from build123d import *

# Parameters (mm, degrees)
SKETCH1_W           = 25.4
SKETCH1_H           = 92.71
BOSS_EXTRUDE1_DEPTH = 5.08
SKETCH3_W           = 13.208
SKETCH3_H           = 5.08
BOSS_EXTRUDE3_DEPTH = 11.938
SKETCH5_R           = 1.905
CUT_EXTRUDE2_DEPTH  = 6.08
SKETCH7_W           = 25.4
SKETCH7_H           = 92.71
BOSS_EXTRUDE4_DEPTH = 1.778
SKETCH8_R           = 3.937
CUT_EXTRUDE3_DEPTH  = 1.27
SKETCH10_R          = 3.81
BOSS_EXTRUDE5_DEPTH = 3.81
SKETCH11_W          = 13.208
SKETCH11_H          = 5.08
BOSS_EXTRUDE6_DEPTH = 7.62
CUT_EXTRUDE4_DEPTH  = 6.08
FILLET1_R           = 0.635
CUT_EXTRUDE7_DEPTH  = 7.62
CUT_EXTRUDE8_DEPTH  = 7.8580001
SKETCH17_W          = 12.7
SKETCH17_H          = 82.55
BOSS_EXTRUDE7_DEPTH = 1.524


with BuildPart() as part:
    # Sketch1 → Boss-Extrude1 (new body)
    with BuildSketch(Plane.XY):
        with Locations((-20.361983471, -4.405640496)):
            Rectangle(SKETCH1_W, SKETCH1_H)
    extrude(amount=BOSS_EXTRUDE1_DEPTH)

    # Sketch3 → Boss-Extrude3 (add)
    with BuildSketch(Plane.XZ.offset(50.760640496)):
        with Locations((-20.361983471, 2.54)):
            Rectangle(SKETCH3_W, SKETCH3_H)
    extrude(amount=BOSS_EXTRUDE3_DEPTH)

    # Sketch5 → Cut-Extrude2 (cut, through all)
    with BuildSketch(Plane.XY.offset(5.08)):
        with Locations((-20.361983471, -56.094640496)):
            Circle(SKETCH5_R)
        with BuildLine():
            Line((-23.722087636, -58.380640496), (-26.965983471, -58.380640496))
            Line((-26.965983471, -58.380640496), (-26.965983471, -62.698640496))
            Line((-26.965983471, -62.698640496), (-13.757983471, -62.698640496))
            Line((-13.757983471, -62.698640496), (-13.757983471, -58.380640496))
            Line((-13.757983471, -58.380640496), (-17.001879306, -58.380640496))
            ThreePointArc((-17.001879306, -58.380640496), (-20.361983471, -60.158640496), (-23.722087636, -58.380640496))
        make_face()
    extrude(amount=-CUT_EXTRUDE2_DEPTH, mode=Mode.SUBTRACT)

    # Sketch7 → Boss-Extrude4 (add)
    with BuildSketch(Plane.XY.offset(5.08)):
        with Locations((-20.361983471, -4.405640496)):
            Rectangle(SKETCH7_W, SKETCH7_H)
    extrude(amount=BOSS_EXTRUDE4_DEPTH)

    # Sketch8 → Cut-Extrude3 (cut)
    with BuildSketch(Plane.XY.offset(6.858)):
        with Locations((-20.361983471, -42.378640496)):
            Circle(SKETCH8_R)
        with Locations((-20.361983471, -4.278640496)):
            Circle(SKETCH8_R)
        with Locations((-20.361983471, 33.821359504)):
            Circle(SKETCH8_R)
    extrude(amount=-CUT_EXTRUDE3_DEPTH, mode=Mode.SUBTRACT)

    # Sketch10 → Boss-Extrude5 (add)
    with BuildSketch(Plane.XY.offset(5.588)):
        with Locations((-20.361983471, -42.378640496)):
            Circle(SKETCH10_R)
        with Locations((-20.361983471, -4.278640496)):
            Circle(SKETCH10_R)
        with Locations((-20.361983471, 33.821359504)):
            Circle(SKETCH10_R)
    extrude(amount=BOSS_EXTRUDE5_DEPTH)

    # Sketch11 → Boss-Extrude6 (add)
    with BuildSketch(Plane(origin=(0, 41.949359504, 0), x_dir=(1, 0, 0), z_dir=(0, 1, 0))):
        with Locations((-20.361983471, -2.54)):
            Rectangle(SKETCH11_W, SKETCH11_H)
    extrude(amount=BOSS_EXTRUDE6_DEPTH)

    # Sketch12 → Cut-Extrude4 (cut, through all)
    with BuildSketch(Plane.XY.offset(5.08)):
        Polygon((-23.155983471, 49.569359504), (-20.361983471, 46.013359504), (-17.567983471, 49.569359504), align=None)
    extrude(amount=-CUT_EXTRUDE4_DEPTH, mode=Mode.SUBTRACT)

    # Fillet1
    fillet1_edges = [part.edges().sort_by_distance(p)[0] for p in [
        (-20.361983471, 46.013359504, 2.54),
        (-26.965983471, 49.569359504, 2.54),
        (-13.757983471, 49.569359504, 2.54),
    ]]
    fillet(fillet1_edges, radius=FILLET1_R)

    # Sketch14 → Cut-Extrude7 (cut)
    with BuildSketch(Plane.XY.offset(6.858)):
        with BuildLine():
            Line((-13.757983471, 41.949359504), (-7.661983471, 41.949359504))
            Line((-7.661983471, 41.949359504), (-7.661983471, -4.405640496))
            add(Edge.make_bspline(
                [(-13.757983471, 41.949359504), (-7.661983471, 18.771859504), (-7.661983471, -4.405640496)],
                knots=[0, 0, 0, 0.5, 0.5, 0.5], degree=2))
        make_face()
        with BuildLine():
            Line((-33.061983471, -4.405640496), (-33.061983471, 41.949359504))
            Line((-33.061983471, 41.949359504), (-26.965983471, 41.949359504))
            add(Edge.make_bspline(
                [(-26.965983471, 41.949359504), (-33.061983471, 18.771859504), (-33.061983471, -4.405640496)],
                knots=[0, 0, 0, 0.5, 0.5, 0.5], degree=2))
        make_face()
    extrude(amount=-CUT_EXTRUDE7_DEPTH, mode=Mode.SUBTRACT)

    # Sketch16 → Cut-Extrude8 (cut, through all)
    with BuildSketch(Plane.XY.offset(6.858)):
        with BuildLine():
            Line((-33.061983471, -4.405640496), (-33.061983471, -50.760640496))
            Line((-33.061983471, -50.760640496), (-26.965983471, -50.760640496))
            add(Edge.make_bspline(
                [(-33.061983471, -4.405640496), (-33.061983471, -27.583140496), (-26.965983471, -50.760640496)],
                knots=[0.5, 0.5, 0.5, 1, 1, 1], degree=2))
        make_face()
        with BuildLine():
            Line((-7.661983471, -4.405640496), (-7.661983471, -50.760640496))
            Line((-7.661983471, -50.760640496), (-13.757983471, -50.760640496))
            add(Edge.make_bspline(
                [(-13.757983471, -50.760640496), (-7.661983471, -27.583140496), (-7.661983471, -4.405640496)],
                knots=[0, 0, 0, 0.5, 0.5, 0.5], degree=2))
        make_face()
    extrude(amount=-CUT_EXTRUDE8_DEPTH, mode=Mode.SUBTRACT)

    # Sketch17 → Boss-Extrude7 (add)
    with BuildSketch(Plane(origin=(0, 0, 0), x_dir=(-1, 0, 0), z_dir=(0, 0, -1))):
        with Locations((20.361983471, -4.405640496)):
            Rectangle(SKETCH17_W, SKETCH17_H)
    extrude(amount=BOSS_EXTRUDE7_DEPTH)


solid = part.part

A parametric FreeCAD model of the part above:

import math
import FreeCAD as App
import Part
import Sketcher
from FreeCAD import Vector
Q = App.Units.Quantity


def edges_at(feature, points):
    """Names of the edges that pass closest to the given points."""
    edges = feature.Shape.Edges
    near = lambda p: min(range(len(edges)), key=lambda i: edges[i].distToShape(Part.Vertex(*p))[0])
    return sorted({f"Edge{near(p) + 1}" for p in points})


def add_polygon(sketch, points):
    """Adds a closed chain of lines whose ends are joined by coincident constraints."""
    first, n = sketch.GeometryCount, len(points)
    for a, b in zip(points, points[1:] + points[:1]):
        sketch.addGeometry(Part.LineSegment(App.Vector(*a, 0), App.Vector(*b, 0)), False)
    for i in range(n):
        sketch.addConstraint(Sketcher.Constraint("Coincident", first + i, 2, first + (i + 1) % n, 1))

doc = App.newDocument("Part")
params = doc.addObject("Spreadsheet::Sheet", "Params")
for row, (alias, value) in enumerate([
    ("sketch1_width", "1 in"),
    ("sketch1_height", "3.65 in"),
    ("pad1_length", "0.2 in"),
    ("sketch2_height", "0.2 in"),
    ("sketch2_width", "0.52 in"),
    ("pad2_length", "0.47 in"),
    ("sketch3_diameter", "0.15 in"),
    ("sketch3_radius", "0.16 in"),
    ("sketch3_width", "0.52 in"),
    ("sketch3_height", "0.17 in"),
    ("sketch4_width", "1 in"),
    ("sketch4_height", "3.65 in"),
    ("pad3_length", "0.07 in"),
    ("sketch5_diameter", "0.31 in"),
    ("pocket2_length", "0.05 in"),
    ("sketch6_diameter", "0.3 in"),
    ("pad4_length", "0.15 in"),
    ("sketch7_height", "0.2 in"),
    ("sketch7_width", "0.52 in"),
    ("pad5_length", "0.3 in"),
    ("sketch8_width", "0.22 in"),
    ("fillet_radius", "0.025 in"),
    ("pocket4_length", "0.3 in"),
    ("sketch11_width", "0.5 in"),
    ("sketch11_height", "3.25 in"),
    ("pad6_length", "0.06 in"),
], start=1):
    params.set(f"A{row}", alias)
    params.set(f"B{row}", "=" + value)
    params.setAlias(f"B{row}", alias)

body = doc.addObject("PartDesign::Body", "Body")

# Sketch on XY plane
sketch1 = body.newObject("Sketcher::SketchObject", "Sketch")
sketch1.AttachmentSupport = (doc.getObject("XY_Plane"), [""])
sketch1.MapMode = "FlatFace"
add_polygon(sketch1, [(-33.061983, 41.94936), (-33.061983, -50.76064), (-7.661983, -50.76064), (-7.661983, 41.94936)])  # lines 0-3
sketch1.addConstraint([
    Sketcher.Constraint("Vertical", 0),
    Sketcher.Constraint("Horizontal", 1),
    Sketcher.Constraint("Vertical", 2),
    Sketcher.Constraint("Horizontal", 3),
    Sketcher.Constraint("DistanceX", 1, 1, 1, 2, Q("1 in")),
    Sketcher.Constraint("DistanceY", 0, 2, 0, 1, Q("3.65 in")),
    Sketcher.Constraint("DistanceY", 0, 2, -1, 1, 50.76064),
    Sketcher.Constraint("DistanceX", 0, 2, -1, 1, 33.061983),
])
sketch1.setExpression("Constraints[8]", "Params.sketch1_width")
sketch1.setExpression("Constraints[9]", "Params.sketch1_height")
pad1 = body.newObject("PartDesign::Pad", "Pad")
pad1.Profile = sketch1
pad1.setExpression("Length", "Params.pad1_length")

# Sketch on XZ plane
sketch2 = body.newObject("Sketcher::SketchObject", "Sketch001")
sketch2.AttachmentSupport = (doc.getObject("XZ_Plane"), [""])
sketch2.MapMode = "FlatFace"
sketch2.AttachmentOffset = App.Placement(Vector(0, 0, 50.76064), App.Rotation())
add_polygon(sketch2, [(-26.965983, 5.08), (-26.965983, 0), (-13.757983, 0), (-13.757983, 5.08)])  # lines 0-3
sketch2.addConstraint([
    Sketcher.Constraint("Vertical", 0),
    Sketcher.Constraint("Horizontal", 1),
    Sketcher.Constraint("Vertical", 2),
    Sketcher.Constraint("Horizontal", 3),
    Sketcher.Constraint("PointOnObject", 0, 2, -1),
    Sketcher.Constraint("DistanceY", 0, 2, 0, 1, Q("0.2 in")),
    Sketcher.Constraint("DistanceX", 1, 1, 1, 2, Q("0.52 in")),
    Sketcher.Constraint("DistanceX", 0, 2, -1, 1, 26.965983),
])
sketch2.setExpression("Constraints[9]", "Params.sketch2_height")
sketch2.setExpression("Constraints[10]", "Params.sketch2_width")
pad2 = body.newObject("PartDesign::Pad", "Pad001")
pad2.Profile = sketch2
pad2.setExpression("Length", "Params.pad2_length")

# Sketch on XY plane
sketch3 = body.newObject("Sketcher::SketchObject", "Sketch002")
sketch3.AttachmentSupport = (doc.getObject("XY_Plane"), [""])
sketch3.MapMode = "FlatFace"
sketch3.AttachmentOffset = App.Placement(Vector(0, 0, 0.2 * 25.4), App.Rotation())
sketch3.addGeometry([
    Part.Circle(Vector(-20.361983, -56.09464, 0), Vector(0, 0, 1), 1.905),  # 0
    Part.LineSegment(Vector(-23.722088, -58.38064, 0), Vector(-26.965983, -58.38064, 0)),  # 1
    Part.LineSegment(Vector(-26.965983, -58.38064, 0), Vector(-26.965983, -62.69864, 0)),  # 2
    Part.LineSegment(Vector(-26.965983, -62.69864, 0), Vector(-13.757983, -62.69864, 0)),  # 3
    Part.LineSegment(Vector(-13.757983, -62.69864, 0), Vector(-13.757983, -58.38064, 0)),  # 4
    Part.LineSegment(Vector(-13.757983, -58.38064, 0), Vector(-17.001879, -58.38064, 0)),  # 5
    Part.ArcOfCircle(Part.Circle(Vector(-20.361983, -56.09464, 0), Vector(0, 0, 1), 4.064), math.radians(-145.771134), math.radians(-34.228866)),  # 6
], False)
sketch3.addConstraint([
    Sketcher.Constraint("Coincident", 1, 2, 2, 1),
    Sketcher.Constraint("Coincident", 2, 2, 3, 1),
    Sketcher.Constraint("Coincident", 3, 2, 4, 1),
    Sketcher.Constraint("Coincident", 4, 2, 5, 1),
    Sketcher.Constraint("Coincident", 5, 2, 6, 2),
    Sketcher.Constraint("Coincident", 6, 1, 1, 1),
    Sketcher.Constraint("Horizontal", 1),
    Sketcher.Constraint("Vertical", 2),
    Sketcher.Constraint("Horizontal", 3),
    Sketcher.Constraint("Vertical", 4),
    Sketcher.Constraint("Horizontal", 5),
    Sketcher.Constraint("Coincident", 6, 3, 0, 3),
    Sketcher.Constraint("Horizontal", 1, 2, 4, 2),
    Sketcher.Constraint("Equal", 1, 5),
    Sketcher.Constraint("Diameter", 0, Q("0.15 in")),
    Sketcher.Constraint("Radius", 6, Q("0.16 in")),
    Sketcher.Constraint("DistanceX", 3, 1, 3, 2, Q("0.52 in")),
    Sketcher.Constraint("DistanceY", 2, 2, 2, 1, Q("0.17 in")),
    Sketcher.Constraint("DistanceY", 1, 2, 0, 3, Q("0.09 in")),
    Sketcher.Constraint("DistanceY", 0, 3, -1, 1, 56.09464),
    Sketcher.Constraint("DistanceX", 5, 2, -1, 1, 17.001879),
])
sketch3.setExpression("Constraints[14]", "Params.sketch3_diameter")
sketch3.setExpression("Constraints[15]", "Params.sketch3_radius")
sketch3.setExpression("Constraints[16]", "Params.sketch3_width")
sketch3.setExpression("Constraints[17]", "Params.sketch3_height")
pocket1 = body.newObject("PartDesign::Pocket", "Pocket")
pocket1.Profile = sketch3
pocket1.Type = "ThroughAll"

# Sketch on XY plane
sketch4 = body.newObject("Sketcher::SketchObject", "Sketch003")
sketch4.AttachmentSupport = (doc.getObject("XY_Plane"), [""])
sketch4.MapMode = "FlatFace"
sketch4.AttachmentOffset = App.Placement(Vector(0, 0, 0.2 * 25.4), App.Rotation())
add_polygon(sketch4, [(-33.061983, 41.94936), (-33.061983, -50.76064), (-7.661983, -50.76064), (-7.661983, 41.94936)])  # lines 0-3
sketch4.addConstraint([
    Sketcher.Constraint("Vertical", 0),
    Sketcher.Constraint("Horizontal", 1),
    Sketcher.Constraint("Vertical", 2),
    Sketcher.Constraint("Horizontal", 3),
    Sketcher.Constraint("DistanceX", 1, 1, 1, 2, Q("1 in")),
    Sketcher.Constraint("DistanceY", 0, 2, 0, 1, Q("3.65 in")),
    Sketcher.Constraint("DistanceY", 0, 2, -1, 1, 50.76064),
    Sketcher.Constraint("DistanceX", 0, 2, -1, 1, 33.061983),
])
sketch4.setExpression("Constraints[8]", "Params.sketch4_width")
sketch4.setExpression("Constraints[9]", "Params.sketch4_height")
pad3 = body.newObject("PartDesign::Pad", "Pad002")
pad3.Profile = sketch4
pad3.setExpression("Length", "Params.pad3_length")

# Sketch on XY plane
sketch5 = body.newObject("Sketcher::SketchObject", "Sketch004")
sketch5.AttachmentSupport = (doc.getObject("XY_Plane"), [""])
sketch5.MapMode = "FlatFace"
sketch5.AttachmentOffset = App.Placement(Vector(0, 0, 0.27 * 25.4), App.Rotation())
sketch5.addGeometry([
    Part.Circle(Vector(-20.361983, -42.37864, 0), Vector(0, 0, 1), 3.937),
    Part.Circle(Vector(-20.361983, -4.27864, 0), Vector(0, 0, 1), 3.937),
    Part.Circle(Vector(-20.361983, 33.82136, 0), Vector(0, 0, 1), 3.937),
], False)
sketch5.addConstraint([
    Sketcher.Constraint("Equal", 0, 1),
    Sketcher.Constraint("Equal", 1, 2),
    Sketcher.Constraint("Vertical", 0, 3, 1, 3),
    Sketcher.Constraint("Vertical", 1, 3, 2, 3),
    Sketcher.Constraint("Diameter", 0, Q("0.31 in")),
    Sketcher.Constraint("DistanceY", 0, 3, 2, 3, Q("3 in")),
    Sketcher.Constraint("DistanceY", 0, 3, 1, 3, Q("1.5 in")),
    Sketcher.Constraint("DistanceY", 0, 3, -1, 1, 42.37864),
    Sketcher.Constraint("DistanceX", 0, 3, -1, 1, 20.361983),
])
sketch5.setExpression("Constraints[4]", "Params.sketch5_diameter")
pocket2 = body.newObject("PartDesign::Pocket", "Pocket001")
pocket2.Profile = sketch5
pocket2.setExpression("Length", "Params.pocket2_length")

# Sketch on XY plane
sketch6 = body.newObject("Sketcher::SketchObject", "Sketch005")
sketch6.AttachmentSupport = (doc.getObject("XY_Plane"), [""])
sketch6.MapMode = "FlatFace"
sketch6.AttachmentOffset = App.Placement(Vector(0, 0, 0.22 * 25.4), App.Rotation())
sketch6.addGeometry([
    Part.Circle(Vector(-20.361983, -42.37864, 0), Vector(0, 0, 1), 3.81),
    Part.Circle(Vector(-20.361983, -4.27864, 0), Vector(0, 0, 1), 3.81),
    Part.Circle(Vector(-20.361983, 33.82136, 0), Vector(0, 0, 1), 3.81),
], False)
sketch6.addConstraint([
    Sketcher.Constraint("Equal", 0, 1),
    Sketcher.Constraint("Equal", 1, 2),
    Sketcher.Constraint("Vertical", 0, 3, 1, 3),
    Sketcher.Constraint("Vertical", 1, 3, 2, 3),
    Sketcher.Constraint("Diameter", 0, Q("0.3 in")),
    Sketcher.Constraint("DistanceY", 0, 3, 2, 3, Q("3 in")),
    Sketcher.Constraint("DistanceY", 0, 3, 1, 3, Q("1.5 in")),
    Sketcher.Constraint("DistanceY", 0, 3, -1, 1, 42.37864),
    Sketcher.Constraint("DistanceX", 0, 3, -1, 1, 20.361983),
])
sketch6.setExpression("Constraints[4]", "Params.sketch6_diameter")
pad4 = body.newObject("PartDesign::Pad", "Pad003")
pad4.Profile = sketch6
pad4.setExpression("Length", "Params.pad4_length")

# Sketch on XZ plane
sketch7 = body.newObject("Sketcher::SketchObject", "Sketch006")
sketch7.AttachmentSupport = (doc.getObject("XZ_Plane"), [""])
sketch7.MapMode = "FlatFace"
sketch7.AttachmentOffset = App.Placement(Vector(0, 0, -41.94936), App.Rotation())
add_polygon(sketch7, [(-26.965983, 0), (-26.965983, 5.08), (-13.757983, 5.08), (-13.757983, 0)])  # lines 0-3
sketch7.addConstraint([
    Sketcher.Constraint("Vertical", 0),
    Sketcher.Constraint("Horizontal", 1),
    Sketcher.Constraint("Vertical", 2),
    Sketcher.Constraint("Horizontal", 3),
    Sketcher.Constraint("PointOnObject", 2, 2, -1),
    Sketcher.Constraint("DistanceY", 0, 1, 0, 2, Q("0.2 in")),
    Sketcher.Constraint("DistanceX", 1, 1, 1, 2, Q("0.52 in")),
    Sketcher.Constraint("DistanceX", 0, 2, -1, 1, 26.965983),
])
sketch7.setExpression("Constraints[9]", "Params.sketch7_height")
sketch7.setExpression("Constraints[10]", "Params.sketch7_width")
pad5 = body.newObject("PartDesign::Pad", "Pad004")
pad5.Profile = sketch7
pad5.setExpression("Length", "Params.pad5_length")
pad5.Reversed = True

# Sketch on XY plane
sketch8 = body.newObject("Sketcher::SketchObject", "Sketch007")
sketch8.AttachmentSupport = (doc.getObject("XY_Plane"), [""])
sketch8.MapMode = "FlatFace"
sketch8.AttachmentOffset = App.Placement(Vector(0, 0, 0.2 * 25.4), App.Rotation())
add_polygon(sketch8, [(-23.155983, 49.56936), (-20.361983, 46.01336), (-17.567983, 49.56936)])  # lines 0-2
sketch8.addConstraint([
    Sketcher.Constraint("Horizontal", 2),
    Sketcher.Constraint("Equal", 0, 1),
    Sketcher.Constraint("DistanceX", 2, 2, 2, 1, Q("0.22 in")),
    Sketcher.Constraint("DistanceY", 0, 2, 1, 2, Q("0.14 in")),
    Sketcher.Constraint("DistanceY", -1, 1, 0, 2, 46.01336),
    Sketcher.Constraint("DistanceX", 0, 2, -1, 1, 20.361983),
])
sketch8.setExpression("Constraints[5]", "Params.sketch8_width")
pocket3 = body.newObject("PartDesign::Pocket", "Pocket002")
pocket3.Profile = sketch8
pocket3.Type = "ThroughAll"
doc.recompute()

fillet = body.newObject("PartDesign::Fillet", "Fillet")
fillet.Base = (pocket3, edges_at(pocket3, [(-20.362, 46.013, 2.54), (-26.966, 49.569, 2.54), (-13.758, 49.569, 2.54)]))
fillet.setExpression("Radius", "Params.fillet_radius")

# Sketch on XY plane
sketch9 = body.newObject("Sketcher::SketchObject", "Sketch008")
sketch9.AttachmentSupport = (doc.getObject("XY_Plane"), [""])
sketch9.MapMode = "FlatFace"
sketch9.AttachmentOffset = App.Placement(Vector(0, 0, 0.27 * 25.4), App.Rotation())
sketch9.addGeometry([
    Part.LineSegment(Vector(-7.661983, 41.94936, 0), Vector(-13.757983, 41.94936, 0)),  # 0
    Part.BSplineCurve([Vector(-13.757983, 41.94936, 0), Vector(-7.661983, 18.77186, 0), Vector(-7.661983, -4.40564, 0)], [3, 3], [0, 0.5], False, 2, [1, 1, 1], False),  # 1
    Part.LineSegment(Vector(-7.661983, -4.40564, 0), Vector(-7.661983, 41.94936, 0)),  # 2
    Part.LineSegment(Vector(-33.061983, 41.94936, 0), Vector(-33.061983, -4.40564, 0)),  # 3
    Part.BSplineCurve([Vector(-26.965983, 41.94936, 0), Vector(-33.061983, 18.77186, 0), Vector(-33.061983, -4.40564, 0)], [3, 3], [0, 0.5], False, 2, [1, 1, 1], False),  # 4
    Part.LineSegment(Vector(-26.965983, 41.94936, 0), Vector(-33.061983, 41.94936, 0)),  # 5
], False)
sketch9.addConstraint([
    Sketcher.Constraint("Block", 1),
    Sketcher.Constraint("Block", 4),
    Sketcher.Constraint("Coincident", 0, 2, 1, 1),
    Sketcher.Constraint("Coincident", 1, 2, 2, 1),
    Sketcher.Constraint("Coincident", 2, 2, 0, 1),
    Sketcher.Constraint("Coincident", 3, 2, 4, 2),
    Sketcher.Constraint("Coincident", 4, 1, 5, 1),
    Sketcher.Constraint("Coincident", 5, 2, 3, 1),
    Sketcher.Constraint("Horizontal", 0),
    Sketcher.Constraint("Vertical", 2),
    Sketcher.Constraint("Vertical", 3),
    Sketcher.Constraint("Horizontal", 5),
])
pocket4 = body.newObject("PartDesign::Pocket", "Pocket003")
pocket4.Profile = sketch9
pocket4.setExpression("Length", "Params.pocket4_length")

# Sketch on XY plane
sketch10 = body.newObject("Sketcher::SketchObject", "Sketch009")
sketch10.AttachmentSupport = (doc.getObject("XY_Plane"), [""])
sketch10.MapMode = "FlatFace"
sketch10.AttachmentOffset = App.Placement(Vector(0, 0, 0.27 * 25.4), App.Rotation())
sketch10.addGeometry([
    Part.LineSegment(Vector(-33.061983, -4.40564, 0), Vector(-33.061983, -50.76064, 0)),  # 0
    Part.LineSegment(Vector(-33.061983, -50.76064, 0), Vector(-26.965983, -50.76064, 0)),  # 1
    Part.BSplineCurve([Vector(-33.061983, -4.40564, 0), Vector(-33.061983, -27.58314, 0), Vector(-26.965983, -50.76064, 0)], [3, 3], [0.5, 1], False, 2, [1, 1, 1], False),  # 2
    Part.LineSegment(Vector(-7.661983, -50.76064, 0), Vector(-7.661983, -4.40564, 0)),  # 3
    Part.BSplineCurve([Vector(-13.757983, -50.76064, 0), Vector(-7.661983, -27.58314, 0), Vector(-7.661983, -4.40564, 0)], [3, 3], [0, 0.5], False, 2, [1, 1, 1], False),  # 4
    Part.LineSegment(Vector(-13.757983, -50.76064, 0), Vector(-7.661983, -50.76064, 0)),  # 5
], False)
sketch10.addConstraint([
    Sketcher.Constraint("Block", 2),
    Sketcher.Constraint("Block", 4),
    Sketcher.Constraint("Coincident", 0, 2, 1, 1),
    Sketcher.Constraint("Coincident", 1, 2, 2, 2),
    Sketcher.Constraint("Coincident", 2, 1, 0, 1),
    Sketcher.Constraint("Coincident", 3, 2, 4, 2),
    Sketcher.Constraint("Coincident", 4, 1, 5, 1),
    Sketcher.Constraint("Coincident", 5, 2, 3, 1),
    Sketcher.Constraint("Vertical", 0),
    Sketcher.Constraint("Horizontal", 1),
    Sketcher.Constraint("Vertical", 3),
    Sketcher.Constraint("Horizontal", 5),
])
pocket5 = body.newObject("PartDesign::Pocket", "Pocket004")
pocket5.Profile = sketch10
pocket5.Type = "ThroughAll"

# Sketch on XY plane
sketch11 = body.newObject("Sketcher::SketchObject", "Sketch010")
sketch11.AttachmentSupport = (doc.getObject("XY_Plane"), [""])
sketch11.MapMode = "FlatFace"
add_polygon(sketch11, [(-14.011983, 36.86936), (-14.011983, -45.68064), (-26.711983, -45.68064), (-26.711983, 36.86936)])  # lines 0-3
sketch11.addConstraint([
    Sketcher.Constraint("Vertical", 0),
    Sketcher.Constraint("Horizontal", 1),
    Sketcher.Constraint("Vertical", 2),
    Sketcher.Constraint("Horizontal", 3),
    Sketcher.Constraint("DistanceX", 1, 2, 1, 1, Q("0.5 in")),
    Sketcher.Constraint("DistanceY", 0, 2, 0, 1, Q("3.25 in")),
    Sketcher.Constraint("DistanceY", 0, 2, -1, 1, 45.68064),
    Sketcher.Constraint("DistanceX", 0, 2, -1, 1, 14.011983),
])
sketch11.setExpression("Constraints[8]", "Params.sketch11_width")
sketch11.setExpression("Constraints[9]", "Params.sketch11_height")
pad6 = body.newObject("PartDesign::Pad", "Pad005")
pad6.Profile = sketch11
pad6.setExpression("Length", "Params.pad6_length")
pad6.Reversed = True

doc.recompute()
